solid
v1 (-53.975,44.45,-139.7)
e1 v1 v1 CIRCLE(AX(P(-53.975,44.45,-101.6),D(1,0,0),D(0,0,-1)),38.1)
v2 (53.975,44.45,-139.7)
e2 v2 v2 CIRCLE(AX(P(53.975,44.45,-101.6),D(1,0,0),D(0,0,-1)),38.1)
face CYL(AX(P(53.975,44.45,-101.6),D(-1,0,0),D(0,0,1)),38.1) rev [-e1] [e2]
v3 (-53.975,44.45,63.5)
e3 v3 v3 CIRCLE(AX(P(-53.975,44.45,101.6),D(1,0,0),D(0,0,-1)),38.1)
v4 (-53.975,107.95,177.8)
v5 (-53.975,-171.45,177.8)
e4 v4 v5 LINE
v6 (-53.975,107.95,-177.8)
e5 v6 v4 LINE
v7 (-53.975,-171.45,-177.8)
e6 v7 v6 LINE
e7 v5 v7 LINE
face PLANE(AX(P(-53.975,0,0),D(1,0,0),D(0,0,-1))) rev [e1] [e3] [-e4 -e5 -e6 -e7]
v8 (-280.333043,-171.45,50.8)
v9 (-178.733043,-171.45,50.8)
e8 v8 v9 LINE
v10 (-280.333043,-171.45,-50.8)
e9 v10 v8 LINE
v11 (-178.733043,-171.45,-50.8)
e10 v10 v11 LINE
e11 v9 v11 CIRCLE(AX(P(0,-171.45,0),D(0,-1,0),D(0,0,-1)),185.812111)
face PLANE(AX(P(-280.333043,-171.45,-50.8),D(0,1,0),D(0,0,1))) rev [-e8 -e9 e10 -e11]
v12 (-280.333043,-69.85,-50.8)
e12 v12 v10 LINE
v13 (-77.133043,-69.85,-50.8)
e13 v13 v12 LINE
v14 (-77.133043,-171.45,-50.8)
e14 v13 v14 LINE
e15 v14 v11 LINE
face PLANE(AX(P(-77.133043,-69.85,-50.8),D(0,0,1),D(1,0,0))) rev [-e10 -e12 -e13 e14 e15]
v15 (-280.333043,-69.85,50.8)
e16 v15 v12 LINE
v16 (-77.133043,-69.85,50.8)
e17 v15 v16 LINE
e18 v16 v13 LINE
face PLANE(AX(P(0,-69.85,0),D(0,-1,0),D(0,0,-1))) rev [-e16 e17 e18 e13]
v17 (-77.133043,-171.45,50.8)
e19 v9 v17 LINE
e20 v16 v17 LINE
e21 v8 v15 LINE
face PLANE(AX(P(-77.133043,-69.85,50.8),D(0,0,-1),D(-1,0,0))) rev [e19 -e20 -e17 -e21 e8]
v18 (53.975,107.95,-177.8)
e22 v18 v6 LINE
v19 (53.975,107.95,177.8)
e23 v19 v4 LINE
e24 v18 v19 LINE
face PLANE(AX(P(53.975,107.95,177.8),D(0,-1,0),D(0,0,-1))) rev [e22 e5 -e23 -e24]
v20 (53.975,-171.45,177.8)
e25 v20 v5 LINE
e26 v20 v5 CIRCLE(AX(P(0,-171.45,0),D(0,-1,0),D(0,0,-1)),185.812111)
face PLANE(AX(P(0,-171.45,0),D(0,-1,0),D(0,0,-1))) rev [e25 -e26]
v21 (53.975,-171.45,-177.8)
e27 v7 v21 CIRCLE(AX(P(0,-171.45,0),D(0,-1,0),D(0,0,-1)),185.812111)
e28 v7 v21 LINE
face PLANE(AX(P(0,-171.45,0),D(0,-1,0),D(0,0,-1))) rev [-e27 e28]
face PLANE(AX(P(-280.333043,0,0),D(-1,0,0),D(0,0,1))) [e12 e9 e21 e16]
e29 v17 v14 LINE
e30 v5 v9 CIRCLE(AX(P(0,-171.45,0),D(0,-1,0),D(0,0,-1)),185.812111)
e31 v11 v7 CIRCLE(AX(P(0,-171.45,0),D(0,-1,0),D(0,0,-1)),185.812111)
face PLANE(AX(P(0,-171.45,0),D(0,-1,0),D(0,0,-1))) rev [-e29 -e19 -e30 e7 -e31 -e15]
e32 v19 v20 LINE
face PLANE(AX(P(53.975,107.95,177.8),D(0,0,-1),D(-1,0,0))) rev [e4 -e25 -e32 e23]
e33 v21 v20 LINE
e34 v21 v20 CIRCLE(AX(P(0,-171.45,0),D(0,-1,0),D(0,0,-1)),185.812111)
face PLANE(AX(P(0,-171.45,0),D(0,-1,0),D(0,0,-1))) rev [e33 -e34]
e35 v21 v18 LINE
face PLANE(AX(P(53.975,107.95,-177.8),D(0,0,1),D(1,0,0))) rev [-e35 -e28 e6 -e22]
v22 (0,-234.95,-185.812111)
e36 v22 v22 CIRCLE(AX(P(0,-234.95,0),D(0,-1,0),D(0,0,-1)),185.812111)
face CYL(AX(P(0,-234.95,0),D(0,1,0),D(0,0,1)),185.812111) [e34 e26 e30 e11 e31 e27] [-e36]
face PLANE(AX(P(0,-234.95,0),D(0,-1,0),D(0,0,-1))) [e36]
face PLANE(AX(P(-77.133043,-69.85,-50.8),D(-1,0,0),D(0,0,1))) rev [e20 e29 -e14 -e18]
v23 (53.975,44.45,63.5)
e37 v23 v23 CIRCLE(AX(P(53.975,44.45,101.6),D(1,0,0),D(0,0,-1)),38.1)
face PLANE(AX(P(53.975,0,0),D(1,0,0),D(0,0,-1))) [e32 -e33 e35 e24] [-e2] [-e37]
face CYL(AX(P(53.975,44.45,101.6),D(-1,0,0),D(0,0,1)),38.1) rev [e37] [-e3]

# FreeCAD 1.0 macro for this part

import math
import FreeCAD as App
import Part
import Sketcher
Q = App.Units.Quantity


def add_polygon(sketch, points):
    """Adds a closed chain of lines whose ends are joined by coincident constraints."""
    first, n = sketch.GeometryCount, len(points)
    for a, b in zip(points, points[1:] + points[:1]):
        sketch.addGeometry(Part.LineSegment(App.Vector(*a, 0), App.Vector(*b, 0)), False)
    for i in range(n):
        sketch.addConstraint(Sketcher.Constraint("Coincident", first + i, 2, first + (i + 1) % n, 1))

doc = App.newDocument("Part")
params = doc.addObject("Spreadsheet::Sheet", "Params")
for row, (alias, value) in enumerate([
    ("sketch1_diameter", "3 in"),
    ("sketch1_height", "14 in"),
    ("sketch1_width", "8.5 in"),
    ("pad1_length", "4.25 in"),
    ("sketch2_height", "14 in"),
    ("sketch2_width", "4.25 in"),
    ("pad2_length", "2.5 in"),
    ("pad3_length", "2.5 in"),
    ("sketch4_width", "4 in"),
    ("pad4_length", "4 in"),
    ("sketch5_width", "4 in"),
    ("pad5_length", "4 in"),
], start=1):
    params.set(f"A{row}", alias)
    params.set(f"B{row}", "=" + value)
    params.setAlias(f"B{row}", alias)

body = doc.addObject("PartDesign::Body", "Body")

# Sketch on YZ plane
sketch1 = body.newObject("Sketcher::SketchObject", "Sketch")
sketch1.AttachmentSupport = (doc.getObject("YZ_Plane"), [""])
sketch1.MapMode = "FlatFace"
add_polygon(sketch1, [(108, 178), (-108, 178), (-108, -178), (108, -178)])  # lines 0-3
sketch1.addGeometry(Part.Circle(App.Vector(44, 102, 0), App.Vector(0, 0, 1), 38), False)  # 4
sketch1.addGeometry(Part.Circle(App.Vector(44, -102, 0), App.Vector(0, 0, 1), 38), False)  # 5
sketch1.addConstraint([
    Sketcher.Constraint("Horizontal", 0),
    Sketcher.Constraint("Vertical", 1),
    Sketcher.Constraint("Horizontal", 2),
    Sketcher.Constraint("Vertical", 3),
    Sketcher.Constraint("Equal", 4, 5),
    Sketcher.Constraint("Symmetric", 0, 2, 2, 2, -1, 1),
    Sketcher.Constraint("Symmetric", 4, 3, 5, 3, -1),
    Sketcher.Constraint("Diameter", 4, Q("3 in")),
    Sketcher.Constraint("DistanceY", 1, 2, 1, 1, Q("14 in")),
    Sketcher.Constraint("DistanceX", 0, 2, 0, 1, Q("8.5 in")),
    Sketcher.Constraint("DistanceY", -1, 1, 4, 3, Q("4 in")),
    Sketcher.Constraint("DistanceX", 0, 2, 4, 3, Q("6 in")),
])
sketch1.setExpression("Constraints[11]", "Params.sketch1_diameter")
sketch1.setExpression("Constraints[12]", "Params.sketch1_height")
sketch1.setExpression("Constraints[13]", "Params.sketch1_width")
pad1 = body.newObject("PartDesign::Pad", "Pad")
pad1.Profile = sketch1
pad1.setExpression("Length", "Params.pad1_length")
pad1.Midplane = True

# Sketch on XZ plane
sketch2 = body.newObject("Sketcher::SketchObject", "Sketch001")
sketch2.AttachmentSupport = (doc.getObject("XZ_Plane"), [""])
sketch2.MapMode = "FlatFace"
sketch2.AttachmentOffset = App.Placement(App.Vector(0, 0, 4.25 * 25.4), App.Rotation())
add_polygon(sketch2, [(-54, 178), (-54, -178), (54, -178), (54, 178)])  # lines 0-3
sketch2.addConstraint([
    Sketcher.Constraint("Vertical", 0),
    Sketcher.Constraint("Horizontal", 1),
    Sketcher.Constraint("Vertical", 2),
    Sketcher.Constraint("Horizontal", 3),
    Sketcher.Constraint("Symmetric", 0, 2, 2, 2, -1, 1),
    Sketcher.Constraint("DistanceY", 0, 2, 0, 1, Q("14 in")),
    Sketcher.Constraint("DistanceX", 1, 1, 1, 2, Q("4.25 in")),
])
sketch2.setExpression("Constraints[9]", "Params.sketch2_height")
sketch2.setExpression("Constraints[10]", "Params.sketch2_width")
pad2 = body.newObject("PartDesign::Pad", "Pad001")
pad2.Profile = sketch2
pad2.setExpression("Length", "Params.pad2_length")

# Sketch on XZ plane
sketch3 = body.newObject("Sketcher::SketchObject", "Sketch002")
sketch3.AttachmentSupport = (doc.getObject("XZ_Plane"), [""])
sketch3.MapMode = "FlatFace"
sketch3.AttachmentOffset = App.Placement(App.Vector(0, 0, 6.75 * 25.4), App.Rotation())
sketch3.addGeometry([
    Part.ArcOfCircle(Part.Circle(App.Vector(0, 0, 0), App.Vector(0, 0, 1), 186), math.radians(107), math.radians(253)),  # 0
    Part.ArcOfCircle(Part.Circle(App.Vector(0, 0, 0), App.Vector(0, 0, 1), 186), math.radians(-107), math.radians(-73)),  # 1
    Part.ArcOfCircle(Part.Circle(App.Vector(0, 0, 0), App.Vector(0, 0, 1), 186), math.radians(-73), math.radians(0)),  # 2
    Part.ArcOfCircle(Part.Circle(App.Vector(0, 0, 0), App.Vector(0, 0, 1), 186), math.radians(0), math.radians(73)),  # 3
    Part.ArcOfCircle(Part.Circle(App.Vector(0, 0, 0), App.Vector(0, 0, 1), 186), math.radians(73), math.radians(107)),  # 4
], False)
sketch3.addConstraint([
    Sketcher.Constraint("Tangent", 0, 2, 1, 1),
    Sketcher.Constraint("Tangent", 1, 2, 2, 1),
    Sketcher.Constraint("Tangent", 2, 2, 3, 1),
    Sketcher.Constraint("Tangent", 3, 2, 4, 1),
    Sketcher.Constraint("Tangent", 4, 2, 0, 1),
    Sketcher.Constraint("Coincident", 0, 3, -1, 1),
    Sketcher.Constraint("Coincident", 2, 3, -1, 1),
    Sketcher.Constraint("PointOnObject", 2, 2, -1),
    Sketcher.Constraint("Horizontal", 0, 2, 1, 2),
    Sketcher.Constraint("Horizontal", 3, 2, 4, 2),
    Sketcher.Constraint("Vertical", 1, 2, 3, 2),
    Sketcher.Constraint("DistanceY", 0, 2, -1, 1, Q("7 in")),
    Sketcher.Constraint("DistanceX", 0, 2, 1, 2, Q("4.25 in")),
])
pad3 = body.newObject("PartDesign::Pad", "Pad002")
pad3.Profile = sketch3
pad3.setExpression("Length", "Params.pad3_length")

# Sketch on XZ plane
sketch4 = body.newObject("Sketcher::SketchObject", "Sketch003")
sketch4.AttachmentSupport = (doc.getObject("XZ_Plane"), [""])
sketch4.MapMode = "FlatFace"
sketch4.AttachmentOffset = App.Placement(App.Vector(0, 0, 6.75 * 25.4), App.Rotation())
add_polygon(sketch4, [(-179, -51), (-179, 51), (-77, 51), (-77, -51)])  # lines 0-3
sketch4.addConstraint([
    Sketcher.Constraint("Vertical", 0),
    Sketcher.Constraint("Horizontal", 1),
    Sketcher.Constraint("Vertical", 2),
    Sketcher.Constraint("Horizontal", 3),
    Sketcher.Constraint("Equal", 3, 0),
    Sketcher.Constraint("DistanceX", 1, 1, 1, 2, Q("4 in")),
    Sketcher.Constraint("DistanceY", -1, 1, 0, 2, Q("2 in")),
    Sketcher.Constraint("DistanceX", 0, 2, -1, 1, Q("178.733043 mm")),
])
sketch4.setExpression("Constraints[9]", "Params.sketch4_width")
pad4 = body.newObject("PartDesign::Pad", "Pad003")
pad4.Profile = sketch4
pad4.setExpression("Length", "Params.pad4_length")
pad4.Reversed = True

# Sketch on YZ plane
sketch5 = body.newObject("Sketcher::SketchObject", "Sketch004")
sketch5.AttachmentSupport = (doc.getObject("YZ_Plane"), [""])
sketch5.MapMode = "FlatFace"
sketch5.AttachmentOffset = App.Placement(App.Vector(0, 0, -178.733043), App.Rotation())
add_polygon(sketch5, [(-70, -51), (-171, -51), (-171, 51), (-70, 51)])  # lines 0-3
sketch5.addConstraint([
    Sketcher.Constraint("Horizontal", 0),
    Sketcher.Constraint("Vertical", 1),
    Sketcher.Constraint("Horizontal", 2),
    Sketcher.Constraint("Vertical", 3),
    Sketcher.Constraint("Equal", 2, 1),
    Sketcher.Constraint("DistanceX", 0, 2, 0, 1, Q("4 in")),
    Sketcher.Constraint("DistanceY", 0, 2, -1, 1, Q("2 in")),
    Sketcher.Constraint("DistanceX", 0, 2, -1, 1, Q("6.75 in")),
])
sketch5.setExpression("Constraints[9]", "Params.sketch5_width")
pad5 = body.newObject("PartDesign::Pad", "Pad004")
pad5.Profile = sketch5
pad5.setExpression("Length", "Params.pad5_length")
pad5.Reversed = True

doc.recompute()
